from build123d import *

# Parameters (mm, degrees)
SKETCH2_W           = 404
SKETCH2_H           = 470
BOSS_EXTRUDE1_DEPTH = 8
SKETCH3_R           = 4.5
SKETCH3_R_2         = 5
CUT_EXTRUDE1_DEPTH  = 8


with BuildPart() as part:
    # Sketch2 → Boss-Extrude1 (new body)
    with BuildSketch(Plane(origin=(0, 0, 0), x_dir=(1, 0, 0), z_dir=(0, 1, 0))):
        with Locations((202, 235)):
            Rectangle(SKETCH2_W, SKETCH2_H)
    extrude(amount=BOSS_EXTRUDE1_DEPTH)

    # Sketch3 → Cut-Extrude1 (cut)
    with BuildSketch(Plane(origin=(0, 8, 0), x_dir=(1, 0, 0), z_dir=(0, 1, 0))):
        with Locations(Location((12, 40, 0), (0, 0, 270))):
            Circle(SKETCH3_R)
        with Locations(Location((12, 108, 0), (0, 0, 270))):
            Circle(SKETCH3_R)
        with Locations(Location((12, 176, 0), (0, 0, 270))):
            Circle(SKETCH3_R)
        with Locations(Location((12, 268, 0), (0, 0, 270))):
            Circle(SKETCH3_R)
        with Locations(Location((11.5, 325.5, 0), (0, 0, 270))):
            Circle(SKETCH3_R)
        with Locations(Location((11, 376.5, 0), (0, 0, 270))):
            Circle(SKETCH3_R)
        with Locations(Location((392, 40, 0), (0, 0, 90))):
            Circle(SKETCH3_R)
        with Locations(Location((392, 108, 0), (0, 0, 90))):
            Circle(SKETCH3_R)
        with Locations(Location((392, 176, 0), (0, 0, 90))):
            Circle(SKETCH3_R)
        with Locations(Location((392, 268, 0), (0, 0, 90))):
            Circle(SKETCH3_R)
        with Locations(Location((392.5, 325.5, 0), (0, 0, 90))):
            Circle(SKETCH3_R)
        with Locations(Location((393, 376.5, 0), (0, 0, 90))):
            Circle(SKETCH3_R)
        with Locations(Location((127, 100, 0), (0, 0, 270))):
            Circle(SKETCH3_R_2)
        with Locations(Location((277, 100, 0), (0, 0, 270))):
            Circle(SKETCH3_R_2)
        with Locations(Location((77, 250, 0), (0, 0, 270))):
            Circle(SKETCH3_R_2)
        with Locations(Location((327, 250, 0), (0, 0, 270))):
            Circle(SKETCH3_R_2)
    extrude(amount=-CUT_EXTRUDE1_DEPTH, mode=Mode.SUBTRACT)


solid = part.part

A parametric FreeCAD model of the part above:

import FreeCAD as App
import Part
import Sketcher

V = App.Vector
Q = App.Units.Quantity

doc = App.newDocument("Part")
body = doc.addObject("PartDesign::Body", "Body")

sketch1 = body.newObject("Sketcher::SketchObject", "Sketch")
sketch1.AttachmentSupport = (doc.getObject("XZ_Plane"), [""])
sketch1.MapMode = "FlatFace"
sketch1.addGeometry([
    Part.LineSegment(V(0, -470, 0), V(0, 0, 0)),
    Part.LineSegment(V(0, 0, 0), V(404, 0, 0)),
    Part.LineSegment(V(404, 0, 0), V(404, -470, 0)),
    Part.LineSegment(V(404, -470, 0), V(0, -470, 0)),
], False)
sketch1.addConstraint([
    Sketcher.Constraint("Coincident", 0, 2, 1, 1),
    Sketcher.Constraint("Coincident", 1, 2, 2, 1),
    Sketcher.Constraint("Coincident", 2, 2, 3, 1),
    Sketcher.Constraint("Coincident", 3, 2, 0, 1),
    Sketcher.Constraint("Vertical", 0),
    Sketcher.Constraint("Horizontal", 1),
    Sketcher.Constraint("Vertical", 2),
    Sketcher.Constraint("Horizontal", 3),
    Sketcher.Constraint("Coincident", 0, 2, -1, 1),
    Sketcher.Constraint("DistanceX", 1, 1, 1, 2, Q("404 mm")),
    Sketcher.Constraint("DistanceY", 0, 1, 0, 2, Q("470 mm")),
])
pad1 = body.newObject("PartDesign::Pad", "Pad")
pad1.Profile = sketch1
pad1.Length = 8
pad1.Reversed = True

sketch2 = body.newObject("Sketcher::SketchObject", "Sketch001")
sketch2.AttachmentSupport = (doc.getObject("XZ_Plane"), [""])
sketch2.MapMode = "FlatFace"
sketch2.AttachmentOffset = App.Placement(V(0, 0, -8), App.Rotation())
sketch2.addGeometry([
    Part.Circle(V(12, -40, 0), V(0, 0, 1), 4.5),
    Part.Circle(V(12, -108, 0), V(0, 0, 1), 4.5),
    Part.Circle(V(12, -176, 0), V(0, 0, 1), 4.5),
    Part.Circle(V(12, -268, 0), V(0, 0, 1), 4.5),
    Part.Circle(V(11.5, -325.5, 0), V(0, 0, 1), 4.5),
    Part.Circle(V(11, -376.5, 0), V(0, 0, 1), 4.5),
    Part.Circle(V(392, -40, 0), V(0, 0, 1), 4.5),
    Part.Circle(V(392, -108, 0), V(0, 0, 1), 4.5),
    Part.Circle(V(392, -176, 0), V(0, 0, 1), 4.5),
    Part.Circle(V(392, -268, 0), V(0, 0, 1), 4.5),
    Part.Circle(V(392.5, -325.5, 0), V(0, 0, 1), 4.5),
    Part.Circle(V(393, -376.5, 0), V(0, 0, 1), 4.5),
    Part.Circle(V(127, -100, 0), V(0, 0, 1), 5),
    Part.Circle(V(277, -100, 0), V(0, 0, 1), 5),
    Part.Circle(V(77, -250, 0), V(0, 0, 1), 5),
    Part.Circle(V(327, -250, 0), V(0, 0, 1), 5),
], False)
sketch2.addConstraint([
    Sketcher.Constraint("Equal", 0, 1),
    Sketcher.Constraint("Equal", 1, 2),
    Sketcher.Constraint("Equal", 2, 3),
    Sketcher.Constraint("Equal", 3, 4),
    Sketcher.Constraint("Equal", 4, 5),
    Sketcher.Constraint("Equal", 5, 6),
    Sketcher.Constraint("Equal", 6, 7),
    Sketcher.Constraint("Equal", 7, 8),
    Sketcher.Constraint("Equal", 8, 9),
    Sketcher.Constraint("Equal", 9, 10),
    Sketcher.Constraint("Equal", 10, 11),
    Sketcher.Constraint("Equal", 12, 13),
    Sketcher.Constraint("Equal", 13, 14),
    Sketcher.Constraint("Equal", 14, 15),
    Sketcher.Constraint("Horizontal", 0, 3, 6, 3),
    Sketcher.Constraint("Horizontal", 1, 3, 7, 3),
    Sketcher.Constraint("Horizontal", 2, 3, 8, 3),
    Sketcher.Constraint("Horizontal", 3, 3, 9, 3),
    Sketcher.Constraint("Horizontal", 4, 3, 10, 3),
    Sketcher.Constraint("Horizontal", 5, 3, 11, 3),
    Sketcher.Constraint("Horizontal", 12, 3, 13, 3),
    Sketcher.Constraint("Horizontal", 14, 3, 15, 3),
    Sketcher.Constraint("Vertical", 0, 3, 1, 3),
    Sketcher.Constraint("Vertical", 1, 3, 2, 3),
    Sketcher.Constraint("Vertical", 2, 3, 3, 3),
    Sketcher.Constraint("Vertical", 6, 3, 7, 3),
    Sketcher.Constraint("Vertical", 7, 3, 8, 3),
    Sketcher.Constraint("Vertical", 8, 3, 9, 3),
    Sketcher.Constraint("Diameter", 0, Q("9 mm")),
    Sketcher.Constraint("Diameter", 12, Q("10 mm")),
    Sketcher.Constraint("DistanceX", -1, 1, 0, 3, Q("12 mm")),
    Sketcher.Constraint("DistanceY", 0, 3, -1, 1, Q("40 mm")),
    Sketcher.Constraint("DistanceY", 1, 3, -1, 1, Q("108 mm")),
    Sketcher.Constraint("DistanceY", 2, 3, -1, 1, Q("176 mm")),
    Sketcher.Constraint("DistanceY", 3, 3, -1, 1, Q("268 mm")),
    Sketcher.Constraint("DistanceX", -1, 1, 5, 3, Q("11 mm")),
    Sketcher.Constraint("DistanceX", -1, 1, 6, 3, Q("392 mm")),
    Sketcher.Constraint("DistanceX", -1, 1, 11, 3, Q("393 mm")),
    Sketcher.Constraint("DistanceX", -1, 1, 12, 3, Q("127 mm")),
    Sketcher.Constraint("DistanceY", 12, 3, -1, 1, Q("100 mm")),
    Sketcher.Constraint("DistanceX", -1, 1, 13, 3, Q("277 mm")),
    Sketcher.Constraint("DistanceX", -1, 1, 14, 3, Q("77 mm")),
    Sketcher.Constraint("DistanceY", 14, 3, -1, 1, Q("250 mm")),
    Sketcher.Constraint("DistanceX", -1, 1, 15, 3, Q("327 mm")),
    Sketcher.Constraint("DistanceY", 5, 3, 4, 3, Q("51 mm")),
    Sketcher.Constraint("DistanceX", 4, 3, 10, 3, Q("381 mm")),
    Sketcher.Constraint("DistanceX", -1, 1, 4, 3, Q("11.5 mm")),
    Sketcher.Constraint("DistanceY", 4, 3, -1, 1, Q("325.5 mm")),
])
pocket1 = body.newObject("PartDesign::Pocket", "Pocket")
pocket1.Profile = sketch2
pocket1.Length = 8
pocket1.Reversed = True

doc.recompute()
